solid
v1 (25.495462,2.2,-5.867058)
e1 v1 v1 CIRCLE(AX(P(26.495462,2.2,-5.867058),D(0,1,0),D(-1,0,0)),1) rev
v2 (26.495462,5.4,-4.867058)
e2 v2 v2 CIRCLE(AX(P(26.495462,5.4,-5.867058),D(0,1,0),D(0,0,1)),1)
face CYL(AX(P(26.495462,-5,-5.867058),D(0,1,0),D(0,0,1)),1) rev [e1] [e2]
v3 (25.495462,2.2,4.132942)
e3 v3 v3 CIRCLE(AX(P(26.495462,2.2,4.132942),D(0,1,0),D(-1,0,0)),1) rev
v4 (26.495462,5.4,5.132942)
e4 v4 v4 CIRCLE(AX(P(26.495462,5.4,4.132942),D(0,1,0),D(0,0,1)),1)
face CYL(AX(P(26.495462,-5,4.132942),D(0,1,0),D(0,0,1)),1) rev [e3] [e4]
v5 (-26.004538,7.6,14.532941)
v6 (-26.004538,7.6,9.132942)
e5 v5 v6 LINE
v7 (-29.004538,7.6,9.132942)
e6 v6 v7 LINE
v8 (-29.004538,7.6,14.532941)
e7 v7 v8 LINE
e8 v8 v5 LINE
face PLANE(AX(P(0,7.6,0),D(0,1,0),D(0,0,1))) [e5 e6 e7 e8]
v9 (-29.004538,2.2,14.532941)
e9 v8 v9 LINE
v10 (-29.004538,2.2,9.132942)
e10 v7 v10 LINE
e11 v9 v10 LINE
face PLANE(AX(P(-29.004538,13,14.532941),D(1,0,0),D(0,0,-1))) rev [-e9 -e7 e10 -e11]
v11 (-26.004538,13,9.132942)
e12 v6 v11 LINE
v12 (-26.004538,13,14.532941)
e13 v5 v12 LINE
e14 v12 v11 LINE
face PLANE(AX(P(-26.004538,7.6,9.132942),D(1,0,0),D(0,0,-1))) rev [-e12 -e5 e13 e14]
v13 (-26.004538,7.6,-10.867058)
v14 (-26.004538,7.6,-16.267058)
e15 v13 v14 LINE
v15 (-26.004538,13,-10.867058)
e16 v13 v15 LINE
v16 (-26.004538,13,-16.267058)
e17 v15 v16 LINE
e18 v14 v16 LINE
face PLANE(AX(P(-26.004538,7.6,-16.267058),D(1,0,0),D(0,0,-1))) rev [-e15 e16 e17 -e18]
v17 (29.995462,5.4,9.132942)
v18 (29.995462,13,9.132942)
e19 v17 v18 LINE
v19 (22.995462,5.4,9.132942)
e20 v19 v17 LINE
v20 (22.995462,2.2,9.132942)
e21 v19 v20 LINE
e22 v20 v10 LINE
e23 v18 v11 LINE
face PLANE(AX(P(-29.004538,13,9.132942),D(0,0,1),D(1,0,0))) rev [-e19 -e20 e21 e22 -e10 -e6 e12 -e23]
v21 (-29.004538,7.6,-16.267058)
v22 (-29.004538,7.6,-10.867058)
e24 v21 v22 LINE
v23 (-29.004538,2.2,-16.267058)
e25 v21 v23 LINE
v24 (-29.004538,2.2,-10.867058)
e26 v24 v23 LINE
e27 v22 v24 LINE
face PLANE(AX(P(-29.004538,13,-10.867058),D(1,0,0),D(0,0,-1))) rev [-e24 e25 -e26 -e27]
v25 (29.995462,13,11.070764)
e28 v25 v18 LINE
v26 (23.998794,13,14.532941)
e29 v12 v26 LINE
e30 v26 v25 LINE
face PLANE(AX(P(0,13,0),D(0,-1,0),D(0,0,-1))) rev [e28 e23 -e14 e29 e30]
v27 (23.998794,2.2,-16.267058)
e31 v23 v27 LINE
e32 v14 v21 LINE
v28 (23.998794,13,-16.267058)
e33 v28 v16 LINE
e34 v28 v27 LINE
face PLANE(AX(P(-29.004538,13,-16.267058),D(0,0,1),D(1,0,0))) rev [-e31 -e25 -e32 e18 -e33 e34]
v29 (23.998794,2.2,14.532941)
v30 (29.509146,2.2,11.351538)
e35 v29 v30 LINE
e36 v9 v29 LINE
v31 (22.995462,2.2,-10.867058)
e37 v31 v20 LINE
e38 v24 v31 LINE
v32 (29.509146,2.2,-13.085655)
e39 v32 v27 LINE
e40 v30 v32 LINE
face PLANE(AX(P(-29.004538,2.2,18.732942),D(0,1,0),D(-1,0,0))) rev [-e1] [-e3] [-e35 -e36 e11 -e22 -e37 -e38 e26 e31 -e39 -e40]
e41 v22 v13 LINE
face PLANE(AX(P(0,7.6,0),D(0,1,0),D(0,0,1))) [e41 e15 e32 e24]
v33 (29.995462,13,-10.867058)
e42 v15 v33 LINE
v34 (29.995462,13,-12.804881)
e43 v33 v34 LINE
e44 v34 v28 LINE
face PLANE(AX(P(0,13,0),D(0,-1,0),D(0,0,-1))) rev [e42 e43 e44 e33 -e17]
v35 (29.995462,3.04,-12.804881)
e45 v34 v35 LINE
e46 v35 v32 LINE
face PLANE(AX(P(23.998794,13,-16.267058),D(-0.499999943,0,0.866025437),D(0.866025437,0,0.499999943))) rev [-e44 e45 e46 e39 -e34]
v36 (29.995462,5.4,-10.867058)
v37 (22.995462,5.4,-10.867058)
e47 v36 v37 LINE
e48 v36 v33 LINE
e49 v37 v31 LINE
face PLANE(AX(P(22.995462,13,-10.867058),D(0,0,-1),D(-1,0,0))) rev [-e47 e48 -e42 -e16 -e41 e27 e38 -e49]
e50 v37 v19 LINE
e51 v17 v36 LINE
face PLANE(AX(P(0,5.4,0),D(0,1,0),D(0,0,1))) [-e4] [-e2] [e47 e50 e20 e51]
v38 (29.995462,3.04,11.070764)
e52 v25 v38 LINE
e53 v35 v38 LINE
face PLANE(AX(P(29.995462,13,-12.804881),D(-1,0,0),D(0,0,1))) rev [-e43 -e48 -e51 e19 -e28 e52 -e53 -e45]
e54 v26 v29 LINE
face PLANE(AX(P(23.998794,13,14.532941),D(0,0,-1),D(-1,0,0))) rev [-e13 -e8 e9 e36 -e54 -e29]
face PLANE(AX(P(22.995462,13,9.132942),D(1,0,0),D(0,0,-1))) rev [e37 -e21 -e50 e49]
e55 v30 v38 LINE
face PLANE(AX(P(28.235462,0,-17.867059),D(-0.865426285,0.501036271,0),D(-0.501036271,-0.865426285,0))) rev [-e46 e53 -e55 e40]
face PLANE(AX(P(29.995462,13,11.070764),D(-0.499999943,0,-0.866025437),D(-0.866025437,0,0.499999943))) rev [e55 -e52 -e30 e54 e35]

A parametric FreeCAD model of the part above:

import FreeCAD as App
import Part
import Sketcher
from FreeCAD import Vector
Q = App.Units.Quantity

doc = App.newDocument("Part")
body = doc.addObject("PartDesign::Body", "Body")

# Sketch on XZ plane
sketch1 = body.newObject("Sketcher::SketchObject", "Sketch")
sketch1.AttachmentSupport = (doc.getObject("XZ_Plane"), [""])
sketch1.MapMode = "FlatFace"
sketch1.addGeometry([
    Part.LineSegment(Vector(-29, 9, 0), Vector(-29, 15, 0)),  # 0
    Part.LineSegment(Vector(-29, 15, 0), Vector(24, 15, 0)),  # 1
    Part.LineSegment(Vector(24, 15, 0), Vector(30, 11, 0)),  # 2
    Part.LineSegment(Vector(30, 11, 0), Vector(30, -13, 0)),  # 3
    Part.LineSegment(Vector(30, -13, 0), Vector(24, -16, 0)),  # 4
    Part.LineSegment(Vector(24, -16, 0), Vector(-29, -16, 0)),  # 5
    Part.LineSegment(Vector(-29, -16, 0), Vector(-29, -11, 0)),  # 6
    Part.LineSegment(Vector(-29, -11, 0), Vector(23, -11, 0)),  # 7
    Part.LineSegment(Vector(23, -11, 0), Vector(23, 9, 0)),  # 8
    Part.LineSegment(Vector(23, 9, 0), Vector(-29, 9, 0)),  # 9
], False)
sketch1.addConstraint([
    Sketcher.Constraint("Coincident", 0, 2, 1, 1),
    Sketcher.Constraint("Coincident", 1, 2, 2, 1),
    Sketcher.Constraint("Coincident", 2, 2, 3, 1),
    Sketcher.Constraint("Coincident", 3, 2, 4, 1),
    Sketcher.Constraint("Coincident", 4, 2, 5, 1),
    Sketcher.Constraint("Coincident", 5, 2, 6, 1),
    Sketcher.Constraint("Coincident", 6, 2, 7, 1),
    Sketcher.Constraint("Coincident", 7, 2, 8, 1),
    Sketcher.Constraint("Coincident", 8, 2, 9, 1),
    Sketcher.Constraint("Coincident", 9, 2, 0, 1),
    Sketcher.Constraint("Vertical", 0),
    Sketcher.Constraint("Horizontal", 1),
    Sketcher.Constraint("Vertical", 3),
    Sketcher.Constraint("Horizontal", 5),
    Sketcher.Constraint("Vertical", 6),
    Sketcher.Constraint("Horizontal", 7),
    Sketcher.Constraint("Vertical", 8),
    Sketcher.Constraint("Horizontal", 9),
    Sketcher.Constraint("Vertical", 1, 2, 4, 2),
    Sketcher.Constraint("Vertical", 0, 2, 5, 2),
    Sketcher.Constraint("Equal", 0, 6),
    Sketcher.Constraint("Equal", 2, 4),
    Sketcher.Constraint("DistanceX", 7, 1, 7, 2, Q("52 mm")),
    Sketcher.Constraint("DistanceY", 8, 1, 8, 2, Q("20 mm")),
    Sketcher.Constraint("Angle", 2, Q("-29.999996 deg")),
    Sketcher.Constraint("DistanceY", 0, 1, 0, 2, Q("5.4 mm")),
    Sketcher.Constraint("DistanceX", 0, 2, 2, 2, Q("59 mm")),
    Sketcher.Constraint("DistanceX", 1, 1, 1, 2, Q("53.003332 mm")),
    Sketcher.Constraint("DistanceX", 0, 2, -1, 1, Q("29.004538 mm")),
    Sketcher.Constraint("DistanceY", -1, 1, 0, 2, Q("14.532941 mm")),
])
pad1 = body.newObject("PartDesign::Pad", "Pad")
pad1.Profile = sketch1
pad1.Length = 13
pad1.Reversed = True

# Sketch on XZ plane
sketch2 = body.newObject("Sketcher::SketchObject", "Sketch001")
sketch2.AttachmentSupport = (doc.getObject("XZ_Plane"), [""])
sketch2.MapMode = "FlatFace"
sketch2.AttachmentOffset = App.Placement(Vector(0, 0, -13), App.Rotation())
sketch2.addGeometry([
    Part.LineSegment(Vector(23, -11, 0), Vector(23, 9, 0)),
    Part.LineSegment(Vector(23, 9, 0), Vector(30, 9, 0)),
    Part.LineSegment(Vector(30, 9, 0), Vector(30, -11, 0)),
    Part.LineSegment(Vector(30, -11, 0), Vector(23, -11, 0)),
], False)
sketch2.addConstraint([
    Sketcher.Constraint("Coincident", 0, 2, 1, 1),
    Sketcher.Constraint("Coincident", 1, 2, 2, 1),
    Sketcher.Constraint("Coincident", 2, 2, 3, 1),
    Sketcher.Constraint("Coincident", 3, 2, 0, 1),
    Sketcher.Constraint("Vertical", 0),
    Sketcher.Constraint("Horizontal", 1),
    Sketcher.Constraint("Vertical", 2),
    Sketcher.Constraint("Horizontal", 3),
    Sketcher.Constraint("DistanceX", 1, 1, 1, 2, Q("7 mm")),
    Sketcher.Constraint("DistanceY", 0, 1, 0, 2, Q("20 mm")),
    Sketcher.Constraint("DistanceX", -1, 1, 0, 2, Q("22.995462 mm")),
    Sketcher.Constraint("DistanceY", -1, 1, 0, 2, Q("9.132942 mm")),
])
pocket1 = body.newObject("PartDesign::Pocket", "Pocket")
pocket1.Profile = sketch2
pocket1.Length = 7.6
pocket1.Reversed = True

# Sketch on XZ plane
sketch3 = body.newObject("Sketcher::SketchObject", "Sketch002")
sketch3.AttachmentSupport = (doc.getObject("XZ_Plane"), [""])
sketch3.MapMode = "FlatFace"
sketch3.AttachmentOffset = App.Placement(Vector(0, 0, -13), App.Rotation())
sketch3.addGeometry([
    Part.LineSegment(Vector(-29, -16.3, 0), Vector(-29, -10.9, 0)),  # 0
    Part.LineSegment(Vector(-29, -10.9, 0), Vector(-26, -10.9, 0)),  # 1
    Part.LineSegment(Vector(-26, -10.9, 0), Vector(-26, -16.3, 0)),  # 2
    Part.LineSegment(Vector(-26, -16.3, 0), Vector(-29, -16.3, 0)),  # 3
    Part.LineSegment(Vector(-29, 9.1, 0), Vector(-29, 14.5, 0)),  # 4
    Part.LineSegment(Vector(-29, 14.5, 0), Vector(-26, 14.5, 0)),  # 5
    Part.LineSegment(Vector(-26, 14.5, 0), Vector(-26, 9.1, 0)),  # 6
    Part.LineSegment(Vector(-26, 9.1, 0), Vector(-29, 9.1, 0)),  # 7
], False)
sketch3.addConstraint([
    Sketcher.Constraint("Coincident", 0, 2, 1, 1),
    Sketcher.Constraint("Coincident", 1, 2, 2, 1),
    Sketcher.Constraint("Coincident", 2, 2, 3, 1),
    Sketcher.Constraint("Coincident", 3, 2, 0, 1),
    Sketcher.Constraint("Coincident", 4, 2, 5, 1),
    Sketcher.Constraint("Coincident", 5, 2, 6, 1),
    Sketcher.Constraint("Coincident", 6, 2, 7, 1),
    Sketcher.Constraint("Coincident", 7, 2, 4, 1),
    Sketcher.Constraint("Vertical", 0),
    Sketcher.Constraint("Horizontal", 1),
    Sketcher.Constraint("Vertical", 2),
    Sketcher.Constraint("Horizontal", 3),
    Sketcher.Constraint("Vertical", 4),
    Sketcher.Constraint("Horizontal", 5),
    Sketcher.Constraint("Vertical", 6),
    Sketcher.Constraint("Horizontal", 7),
    Sketcher.Constraint("Vertical", 3, 2, 4, 2),
    Sketcher.Constraint("Vertical", 2, 2, 5, 2),
    Sketcher.Constraint("Equal", 2, 4),
    Sketcher.Constraint("DistanceX", 1, 1, 1, 2, Q("3 mm")),
    Sketcher.Constraint("DistanceY", 0, 1, 0, 2, Q("5.4 mm")),
    Sketcher.Constraint("DistanceY", 1, 2, 6, 2, Q("20 mm")),
    Sketcher.Constraint("DistanceX", 0, 2, -1, 1, Q("29.004538 mm")),
    Sketcher.Constraint("DistanceY", 0, 2, -1, 1, Q("10.867058 mm")),
])
pocket2 = body.newObject("PartDesign::Pocket", "Pocket001")
pocket2.Profile = sketch3
pocket2.Length = 5.4
pocket2.Reversed = True

# Sketch on XZ plane
sketch4 = body.newObject("Sketcher::SketchObject", "Sketch003")
sketch4.AttachmentSupport = (doc.getObject("XZ_Plane"), [""])
sketch4.MapMode = "FlatFace"
sketch4.AttachmentOffset = App.Placement(Vector(0, 0, -5.4), App.Rotation())
sketch4.addGeometry([
    Part.Circle(Vector(26.5, -5.9, 0), Vector(0, 0, 1), 1),
    Part.Circle(Vector(26.5, 4.1, 0), Vector(0, 0, 1), 1),
], False)
sketch4.addConstraint([
    Sketcher.Constraint("Equal", 0, 1),
    Sketcher.Constraint("Vertical", 0, 3, 1, 3),
    Sketcher.Constraint("Diameter", 0, Q("2 mm")),
    Sketcher.Constraint("DistanceY", 0, 3, 1, 3, Q("10 mm")),
    Sketcher.Constraint("DistanceX", -1, 1, 0, 3, Q("26.495462 mm")),
    Sketcher.Constraint("DistanceY", 0, 3, -1, 1, Q("5.867058 mm")),
])
pocket3 = body.newObject("PartDesign::Pocket", "Pocket002")
pocket3.Profile = sketch4
pocket3.Length = 10.4
pocket3.Reversed = True

# Sketch on XY plane
sketch5 = body.newObject("Sketcher::SketchObject", "Sketch004")
sketch5.AttachmentSupport = (doc.getObject("XY_Plane"), [""])
sketch5.MapMode = "FlatFace"
sketch5.AttachmentOffset = App.Placement(Vector(0, 0, 14.532941), App.Rotation())
sketch5.addGeometry([
    Part.LineSegment(Vector(30, 3, 0), Vector(28.2, 0, 0)),
    Part.LineSegment(Vector(28.2, 0, 0), Vector(30, 0, 0)),
    Part.LineSegment(Vector(30, 0, 0), Vector(30, 3, 0)),
], False)
sketch5.addConstraint([
    Sketcher.Constraint("Coincident", 0, 2, 1, 1),
    Sketcher.Constraint("Coincident", 1, 2, 2, 1),
    Sketcher.Constraint("Coincident", 2, 2, 0, 1),
    Sketcher.Constraint("Horizontal", 1),
    Sketcher.Constraint("Vertical", 2),
    Sketcher.Constraint("PointOnObject", 0, 2, -1),
    Sketcher.Constraint("DistanceX", 1, 1, 1, 2, Q("1.76 mm")),
    Sketcher.Constraint("DistanceY", 2, 1, 2, 2, Q("3.04 mm")),
    Sketcher.Constraint("DistanceX", -1, 1, 0, 2, Q("28.235462 mm")),
])
pocket4 = body.newObject("PartDesign::Pocket", "Pocket003")
pocket4.Profile = sketch5
pocket4.Length = 32.4

# Sketch on XY plane
sketch6 = body.newObject("Sketcher::SketchObject", "Sketch005")
sketch6.AttachmentSupport = (doc.getObject("XY_Plane"), [""])
sketch6.MapMode = "FlatFace"
sketch6.AttachmentOffset = App.Placement(Vector(0, 0, -16.267058), App.Rotation())
sketch6.addGeometry([
    Part.LineSegment(Vector(37.6, 2.2, 0), Vector(37.6, 0, 0)),
    Part.LineSegment(Vector(37.6, 0, 0), Vector(-29, 0, 0)),
    Part.LineSegment(Vector(-29, 0, 0), Vector(-29, 2.2, 0)),
    Part.LineSegment(Vector(-29, 2.2, 0), Vector(37.6, 2.2, 0)),
], False)
sketch6.addConstraint([
    Sketcher.Constraint("Coincident", 0, 2, 1, 1),
    Sketcher.Constraint("Coincident", 1, 2, 2, 1),
    Sketcher.Constraint("Coincident", 2, 2, 3, 1),
    Sketcher.Constraint("Coincident", 3, 2, 0, 1),
    Sketcher.Constraint("Vertical", 0),
    Sketcher.Constraint("Horizontal", 1),
    Sketcher.Constraint("Vertical", 2),
    Sketcher.Constraint("Horizontal", 3),
    Sketcher.Constraint("PointOnObject", 0, 2, -1),
    Sketcher.Constraint("DistanceY", 0, 2, 0, 1, Q("2.2 mm")),
    Sketcher.Constraint("DistanceX", 1, 2, 1, 1, Q("66.642206 mm")),
    Sketcher.Constraint("DistanceX", -1, 1, 0, 2, Q("37.637668 mm")),
])
pocket5 = body.newObject("PartDesign::Pocket", "Pocket004")
pocket5.Profile = sketch6
pocket5.Length = 35
pocket5.Reversed = True

doc.recompute()
